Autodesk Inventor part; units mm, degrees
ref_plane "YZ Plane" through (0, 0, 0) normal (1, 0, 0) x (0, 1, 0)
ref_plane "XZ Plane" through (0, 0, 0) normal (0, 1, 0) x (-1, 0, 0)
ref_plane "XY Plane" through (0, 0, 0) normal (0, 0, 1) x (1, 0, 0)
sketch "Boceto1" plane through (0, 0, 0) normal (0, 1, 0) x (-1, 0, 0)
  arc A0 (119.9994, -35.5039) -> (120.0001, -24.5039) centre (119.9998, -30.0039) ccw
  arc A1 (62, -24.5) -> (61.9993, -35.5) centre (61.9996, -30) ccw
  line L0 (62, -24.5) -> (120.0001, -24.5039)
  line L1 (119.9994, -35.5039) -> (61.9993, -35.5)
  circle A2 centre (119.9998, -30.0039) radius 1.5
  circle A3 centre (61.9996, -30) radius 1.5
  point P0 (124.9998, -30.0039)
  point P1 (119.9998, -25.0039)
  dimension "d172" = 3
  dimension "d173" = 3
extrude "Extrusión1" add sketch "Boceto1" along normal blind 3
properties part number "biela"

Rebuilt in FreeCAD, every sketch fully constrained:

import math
import FreeCAD as App
import Part
import Sketcher
from FreeCAD import Vector

doc = App.newDocument("Part")
body = doc.addObject("PartDesign::Body", "Body")

# Sketch on XZ plane
sketch1 = body.newObject("Sketcher::SketchObject", "Sketch")
sketch1.AttachmentSupport = (doc.getObject("XZ_Plane"), [""])
sketch1.MapMode = "FlatFace"
sketch1.addGeometry(Part.LineSegment(Vector(-61.9993, -35.5, 0), Vector(-119.9994, -35.5039, 0)), False)
sketch1.addGeometry(Part.ArcOfCircle(Part.Circle(Vector(-119.9998, -30.0039, 0), Vector(0, 0, 1), 5.5), math.radians(90.003125), math.radians(270.004167)), False)
sketch1.addGeometry(Part.LineSegment(Vector(-120.0001, -24.5039, 0), Vector(-62, -24.5, 0)), False)
sketch1.addGeometry(Part.ArcOfCircle(Part.Circle(Vector(-61.9996, -30, 0), Vector(0, 0, 1), 5.5), math.radians(-89.996875), math.radians(90.004167)), False)
sketch1.addGeometry(Part.Circle(Vector(-119.9998, -30.0039, 0), Vector(0, 0, 1), 1.5), False)
sketch1.addGeometry(Part.Circle(Vector(-61.9996, -30, 0), Vector(0, 0, 1), 1.5), False)
sketch1.addConstraint(Sketcher.Constraint("Tangent", 0, 2, 1, 2))
sketch1.addConstraint(Sketcher.Constraint("Tangent", 1, 1, 2, 1))
sketch1.addConstraint(Sketcher.Constraint("Tangent", 2, 2, 3, 2))
sketch1.addConstraint(Sketcher.Constraint("Tangent", 3, 1, 0, 1))
sketch1.addConstraint(Sketcher.Constraint("Coincident", 4, 3, 1, 3))
sketch1.addConstraint(Sketcher.Constraint("Coincident", 5, 3, 3, 3))
sketch1.addConstraint(Sketcher.Constraint("Equal", 1, 3))
sketch1.addConstraint(Sketcher.Constraint("Equal", 4, 5))
sketch1.addConstraint(Sketcher.Constraint("Diameter", 4, 3.0))
sketch1.addConstraint(Sketcher.Constraint("Radius", 1, 5.5))
sketch1.addConstraint(Sketcher.Constraint("Distance", 0, 58.0))
sketch1.addConstraint(Sketcher.Constraint("DistanceY", 3, 3, -1, 1, 30.0))
sketch1.addConstraint(Sketcher.Constraint("DistanceX", 1, 1, -1, 1, 120.0))
sketch1.addConstraint(Sketcher.Constraint("DistanceY", 1, 3, -1, 1, 30.004))
pad1 = body.newObject("PartDesign::Pad", "Pad")
pad1.Profile = sketch1
pad1.Length = 3
pad1.Reversed = True

doc.recompute()
